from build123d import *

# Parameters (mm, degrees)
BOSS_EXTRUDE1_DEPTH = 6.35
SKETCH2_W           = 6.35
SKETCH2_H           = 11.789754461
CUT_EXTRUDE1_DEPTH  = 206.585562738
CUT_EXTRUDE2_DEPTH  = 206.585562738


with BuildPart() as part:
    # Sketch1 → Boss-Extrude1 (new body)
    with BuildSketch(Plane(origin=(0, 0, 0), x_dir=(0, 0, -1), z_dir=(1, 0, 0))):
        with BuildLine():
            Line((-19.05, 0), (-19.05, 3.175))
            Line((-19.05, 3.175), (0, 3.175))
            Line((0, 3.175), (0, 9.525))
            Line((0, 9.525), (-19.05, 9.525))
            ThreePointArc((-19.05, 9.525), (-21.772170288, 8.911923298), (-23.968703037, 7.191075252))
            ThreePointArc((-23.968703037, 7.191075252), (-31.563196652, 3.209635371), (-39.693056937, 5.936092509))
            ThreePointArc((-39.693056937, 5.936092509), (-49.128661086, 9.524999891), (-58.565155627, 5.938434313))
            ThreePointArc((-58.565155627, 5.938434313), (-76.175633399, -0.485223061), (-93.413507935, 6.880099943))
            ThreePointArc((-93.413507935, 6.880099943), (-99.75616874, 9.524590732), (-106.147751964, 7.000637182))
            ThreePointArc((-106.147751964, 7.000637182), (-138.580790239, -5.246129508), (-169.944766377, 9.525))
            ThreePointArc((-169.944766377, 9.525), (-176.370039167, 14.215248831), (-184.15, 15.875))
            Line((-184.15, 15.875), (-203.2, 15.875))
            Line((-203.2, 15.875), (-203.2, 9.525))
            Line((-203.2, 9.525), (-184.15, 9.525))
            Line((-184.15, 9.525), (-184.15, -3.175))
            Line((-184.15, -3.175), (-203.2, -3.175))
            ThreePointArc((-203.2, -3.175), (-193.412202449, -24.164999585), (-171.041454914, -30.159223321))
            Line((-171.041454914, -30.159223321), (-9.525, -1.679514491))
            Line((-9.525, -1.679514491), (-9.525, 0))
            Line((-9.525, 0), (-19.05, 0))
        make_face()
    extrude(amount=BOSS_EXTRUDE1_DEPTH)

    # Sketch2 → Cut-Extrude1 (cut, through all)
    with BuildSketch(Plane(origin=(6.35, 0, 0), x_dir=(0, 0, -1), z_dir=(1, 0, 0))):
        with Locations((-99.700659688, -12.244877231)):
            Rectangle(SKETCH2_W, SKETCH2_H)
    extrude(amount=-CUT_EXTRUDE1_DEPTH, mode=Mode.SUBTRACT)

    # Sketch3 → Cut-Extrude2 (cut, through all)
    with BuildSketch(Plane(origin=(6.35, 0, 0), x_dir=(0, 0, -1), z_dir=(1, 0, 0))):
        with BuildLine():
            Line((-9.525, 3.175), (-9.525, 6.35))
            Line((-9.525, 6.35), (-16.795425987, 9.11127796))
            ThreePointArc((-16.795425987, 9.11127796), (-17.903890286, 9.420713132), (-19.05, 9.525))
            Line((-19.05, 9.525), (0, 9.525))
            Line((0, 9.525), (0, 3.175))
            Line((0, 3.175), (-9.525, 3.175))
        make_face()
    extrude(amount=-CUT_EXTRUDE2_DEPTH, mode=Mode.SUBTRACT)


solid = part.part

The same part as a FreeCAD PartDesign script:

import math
import FreeCAD as App
import Part
import Sketcher

V = App.Vector
Q = App.Units.Quantity

doc = App.newDocument("Part")
body = doc.addObject("PartDesign::Body", "Body")

# Sketch on YZ plane
sketch1 = doc.addObject("Sketcher::SketchObject", "Sketch")
body.addObject(sketch1)
sketch1.AttachmentSupport = (doc.YZ_Plane, [""])
sketch1.MapMode = "FlatFace"
sketch1.addGeometry([
    Part.LineSegment(V(0, 19.1, 0), V(3.2, 19.1, 0)),  # 0
    Part.LineSegment(V(3.2, 19.1, 0), V(3.2, 0, 0)),  # 1
    Part.LineSegment(V(3.2, 0, 0), V(9.5, 0, 0)),  # 2
    Part.LineSegment(V(9.5, 0, 0), V(9.5, 19.1, 0)),  # 3
    Part.ArcOfCircle(Part.Circle(V(3.2, 19.1, 0), V(0, 0, 1), 6.3), math.radians(0), math.radians(51)),  # 4
    Part.ArcOfCircle(Part.Circle(V(14.1, 32.4, 0), V(0, 0, 1), 10.9), math.radians(138), math.radians(231)),  # 5
    Part.ArcOfCircle(Part.Circle(V(-4.7, 49.1, 0), V(0, 0, 1), 14.2), math.radians(-42), math.radians(42)),  # 6
    Part.ArcOfCircle(Part.Circle(V(25, 75.5, 0), V(0, 0, 1), 25.5), math.radians(135), math.radians(222)),  # 7
    Part.ArcOfCircle(Part.Circle(V(0.4, 99.8, 0), V(0, 0, 1), 9.1), math.radians(-45), math.radians(44)),  # 8
    Part.ArcOfCircle(Part.Circle(V(39.2, 136.8, 0), V(0, 0, 1), 44.5), math.radians(132), math.radians(224)),  # 9
    Part.ArcOfCircle(Part.Circle(V(-3.2, 184.2, 0), V(0, 0, 1), 19.1), math.radians(-48), math.radians(0)),  # 10
    Part.LineSegment(V(15.9, 184.2, 0), V(15.9, 203.2, 0)),  # 11
    Part.LineSegment(V(15.9, 203.2, 0), V(9.5, 203.2, 0)),  # 12
    Part.LineSegment(V(9.5, 203.2, 0), V(9.5, 184.2, 0)),  # 13
    Part.LineSegment(V(9.5, 184.2, 0), V(-3.2, 184.2, 0)),  # 14
    Part.LineSegment(V(-3.2, 184.2, 0), V(-3.2, 203.2, 0)),  # 15
    Part.ArcOfCircle(Part.Circle(V(-3.2, 175.8, 0), V(0, 0, 1), 27.4), math.radians(90), math.radians(190)),  # 16
    Part.LineSegment(V(-30.2, 171, 0), V(-1.7, 9.5, 0)),  # 17
    Part.LineSegment(V(-1.7, 9.5, 0), V(0, 9.5, 0)),  # 18
    Part.LineSegment(V(0, 9.5, 0), V(0, 19.1, 0)),  # 19
], False)
sketch1.addConstraint([
    Sketcher.Constraint("Coincident", 0, 2, 1, 1),
    Sketcher.Constraint("Coincident", 1, 2, 2, 1),
    Sketcher.Constraint("Coincident", 2, 2, 3, 1),
    Sketcher.Constraint("Tangent", 3, 2, 4, 1),
    Sketcher.Constraint("Tangent", 4, 2, 5, 2),
    Sketcher.Constraint("Tangent", 5, 1, 6, 1),
    Sketcher.Constraint("Tangent", 6, 2, 7, 2),
    Sketcher.Constraint("Tangent", 7, 1, 8, 1),
    Sketcher.Constraint("Tangent", 8, 2, 9, 2),
    Sketcher.Constraint("Tangent", 9, 1, 10, 1),
    Sketcher.Constraint("Tangent", 10, 2, 11, 1),
    Sketcher.Constraint("Coincident", 11, 2, 12, 1),
    Sketcher.Constraint("Coincident", 12, 2, 13, 1),
    Sketcher.Constraint("Coincident", 13, 2, 14, 1),
    Sketcher.Constraint("Coincident", 14, 2, 15, 1),
    Sketcher.Constraint("Coincident", 15, 2, 16, 1),
    Sketcher.Constraint("Tangent", 16, 2, 17, 1),
    Sketcher.Constraint("Coincident", 17, 2, 18, 1),
    Sketcher.Constraint("Coincident", 18, 2, 19, 1),
    Sketcher.Constraint("Coincident", 19, 2, 0, 1),
    Sketcher.Constraint("Horizontal", 0),
    Sketcher.Constraint("Vertical", 1),
    Sketcher.Constraint("Horizontal", 2),
    Sketcher.Constraint("Vertical", 3),
    Sketcher.Constraint("Vertical", 11),
    Sketcher.Constraint("Horizontal", 12),
    Sketcher.Constraint("Vertical", 13),
    Sketcher.Constraint("Horizontal", 14),
    Sketcher.Constraint("Vertical", 15),
    Sketcher.Constraint("Horizontal", 18),
    Sketcher.Constraint("Vertical", 19),
    Sketcher.Constraint("Coincident", 0, 2, 4, 3),
    Sketcher.Constraint("PointOnObject", 1, 2, -1),
    Sketcher.Constraint("PointOnObject", 18, 2, -2),
    Sketcher.Constraint("Horizontal", 10, 2, 13, 2),
    Sketcher.Constraint("Horizontal", 12, 2, 15, 2),
    Sketcher.Constraint("Vertical", 3, 2, 9, 1),
    Sketcher.Constraint("Vertical", 9, 1, 12, 2),
    Sketcher.Constraint("Vertical", 16, 3, 14, 2),
    Sketcher.Constraint("Equal", 2, 12),
    Sketcher.Constraint("Equal", 3, 11),
    Sketcher.Constraint("Radius", 4, Q("0.25 in")),
    Sketcher.Constraint("Radius", 9, Q("1.75 in")),
    Sketcher.Constraint("DistanceX", 14, 2, 14, 1, Q("0.5 in")),
    Sketcher.Constraint("DistanceY", -1, 1, 11, 2, Q("8 in")),
    Sketcher.Constraint("Angle", 17, Q("-80 deg")),
    Sketcher.Constraint("DistanceY", 1, 2, 1, 1, Q("0.75 in")),
    Sketcher.Constraint("DistanceX", 0, 1, 0, 2, Q("0.125 in")),
    Sketcher.Constraint("DistanceY", 19, 1, 19, 2, Q("0.375 in")),
    Sketcher.Constraint("Radius", 16, Q("27.400498 mm")),
    Sketcher.Constraint("Radius", 6, Q("14.202671 mm")),
    Sketcher.Constraint("Radius", 7, Q("25.474261 mm")),
    Sketcher.Constraint("Radius", 8, Q("9.13632 mm")),
    Sketcher.Constraint("Radius", 10, Q("19.063871 mm")),
    Sketcher.Constraint("Radius", 5, Q("10.926692 mm")),
    Sketcher.Constraint("DistanceX", -1, 1, 7, 1, Q("6.8801 mm")),
    Sketcher.Constraint("DistanceY", 6, 3, 7, 3, Q("26.3571 mm")),
    Sketcher.Constraint("DistanceX", 6, 3, 10, 3, Q("1.4888 mm")),
])
pad1 = doc.addObject("PartDesign::Pad", "Pad")
body.addObject(pad1)
pad1.Profile = sketch1
pad1.Length = Q("0.25 in")

# Sketch on YZ plane
sketch2 = doc.addObject("Sketcher::SketchObject", "Sketch001")
body.addObject(sketch2)
sketch2.AttachmentSupport = (doc.YZ_Plane, [""])
sketch2.MapMode = "FlatFace"
sketch2.AttachmentOffset = App.Placement(V(0, 0, 0.25 * 25.4), App.Rotation())
sketch2.addGeometry([
    Part.LineSegment(V(-6, 103, 0), V(-18, 103, 0)),
    Part.LineSegment(V(-18, 103, 0), V(-18, 97, 0)),
    Part.LineSegment(V(-18, 97, 0), V(-6, 97, 0)),
    Part.LineSegment(V(-6, 97, 0), V(-6, 103, 0)),
], False)
sketch2.addConstraint([
    Sketcher.Constraint("Coincident", 0, 2, 1, 1),
    Sketcher.Constraint("Coincident", 1, 2, 2, 1),
    Sketcher.Constraint("Coincident", 2, 2, 3, 1),
    Sketcher.Constraint("Coincident", 3, 2, 0, 1),
    Sketcher.Constraint("Horizontal", 0),
    Sketcher.Constraint("Vertical", 1),
    Sketcher.Constraint("Horizontal", 2),
    Sketcher.Constraint("Vertical", 3),
    Sketcher.Constraint("DistanceY", 1, 2, 1, 1, Q("0.25 in")),
    Sketcher.Constraint("DistanceX", 2, 2, -1, 1, Q("0.25 in")),
    Sketcher.Constraint("DistanceX", 0, 2, 0, 1, Q("11.789754 mm")),
    Sketcher.Constraint("DistanceY", -1, 1, 0, 2, Q("102.87566 mm")),
])
pocket1 = doc.addObject("PartDesign::Pocket", "Pocket")
body.addObject(pocket1)
pocket1.Profile = sketch2
pocket1.Type = "ThroughAll"

# Sketch on YZ plane
sketch3 = doc.addObject("Sketcher::SketchObject", "Sketch002")
body.addObject(sketch3)
sketch3.AttachmentSupport = (doc.YZ_Plane, [""])
sketch3.MapMode = "FlatFace"
sketch3.AttachmentOffset = App.Placement(V(0, 0, 0.25 * 25.4), App.Rotation())
sketch3.addGeometry([
    Part.LineSegment(V(6.3, 9.5, 0), V(3.2, 9.5, 0)),  # 0
    Part.LineSegment(V(3.2, 9.5, 0), V(3.2, 0, 0)),  # 1
    Part.LineSegment(V(3.2, 0, 0), V(9.5, 0, 0)),  # 2
    Part.LineSegment(V(9.5, 0, 0), V(9.5, 19.1, 0)),  # 3
    Part.ArcOfCircle(Part.Circle(V(3.2, 19, 0), V(0, 0, 1), 6.3), math.radians(-21), math.radians(0)),  # 4
    Part.LineSegment(V(9.1, 16.8, 0), V(6.3, 9.5, 0)),  # 5
], False)
sketch3.addConstraint([
    Sketcher.Constraint("Coincident", 0, 2, 1, 1),
    Sketcher.Constraint("Coincident", 1, 2, 2, 1),
    Sketcher.Constraint("Coincident", 2, 2, 3, 1),
    Sketcher.Constraint("Tangent", 3, 2, 4, 2),
    Sketcher.Constraint("Tangent", 4, 1, 5, 1),
    Sketcher.Constraint("Coincident", 5, 2, 0, 1),
    Sketcher.Constraint("Horizontal", 0),
    Sketcher.Constraint("Vertical", 1),
    Sketcher.Constraint("Horizontal", 2),
    Sketcher.Constraint("Vertical", 3),
    Sketcher.Constraint("PointOnObject", 1, 2, -1),
    Sketcher.Constraint("Vertical", 4, 3, 0, 2),
    Sketcher.Constraint("Radius", 4, Q("0.25 in")),
    Sketcher.Constraint("DistanceY", 3, 1, 3, 2, Q("0.75 in")),
    Sketcher.Constraint("DistanceX", 0, 2, 0, 1, Q("0.125 in")),
    Sketcher.Constraint("DistanceY", 1, 2, 1, 1, Q("0.375 in")),
    Sketcher.Constraint("DistanceX", -1, 1, 5, 2, Q("0.25 in")),
])
pocket2 = doc.addObject("PartDesign::Pocket", "Pocket001")
body.addObject(pocket2)
pocket2.Profile = sketch3
pocket2.Type = "ThroughAll"

doc.recompute()
